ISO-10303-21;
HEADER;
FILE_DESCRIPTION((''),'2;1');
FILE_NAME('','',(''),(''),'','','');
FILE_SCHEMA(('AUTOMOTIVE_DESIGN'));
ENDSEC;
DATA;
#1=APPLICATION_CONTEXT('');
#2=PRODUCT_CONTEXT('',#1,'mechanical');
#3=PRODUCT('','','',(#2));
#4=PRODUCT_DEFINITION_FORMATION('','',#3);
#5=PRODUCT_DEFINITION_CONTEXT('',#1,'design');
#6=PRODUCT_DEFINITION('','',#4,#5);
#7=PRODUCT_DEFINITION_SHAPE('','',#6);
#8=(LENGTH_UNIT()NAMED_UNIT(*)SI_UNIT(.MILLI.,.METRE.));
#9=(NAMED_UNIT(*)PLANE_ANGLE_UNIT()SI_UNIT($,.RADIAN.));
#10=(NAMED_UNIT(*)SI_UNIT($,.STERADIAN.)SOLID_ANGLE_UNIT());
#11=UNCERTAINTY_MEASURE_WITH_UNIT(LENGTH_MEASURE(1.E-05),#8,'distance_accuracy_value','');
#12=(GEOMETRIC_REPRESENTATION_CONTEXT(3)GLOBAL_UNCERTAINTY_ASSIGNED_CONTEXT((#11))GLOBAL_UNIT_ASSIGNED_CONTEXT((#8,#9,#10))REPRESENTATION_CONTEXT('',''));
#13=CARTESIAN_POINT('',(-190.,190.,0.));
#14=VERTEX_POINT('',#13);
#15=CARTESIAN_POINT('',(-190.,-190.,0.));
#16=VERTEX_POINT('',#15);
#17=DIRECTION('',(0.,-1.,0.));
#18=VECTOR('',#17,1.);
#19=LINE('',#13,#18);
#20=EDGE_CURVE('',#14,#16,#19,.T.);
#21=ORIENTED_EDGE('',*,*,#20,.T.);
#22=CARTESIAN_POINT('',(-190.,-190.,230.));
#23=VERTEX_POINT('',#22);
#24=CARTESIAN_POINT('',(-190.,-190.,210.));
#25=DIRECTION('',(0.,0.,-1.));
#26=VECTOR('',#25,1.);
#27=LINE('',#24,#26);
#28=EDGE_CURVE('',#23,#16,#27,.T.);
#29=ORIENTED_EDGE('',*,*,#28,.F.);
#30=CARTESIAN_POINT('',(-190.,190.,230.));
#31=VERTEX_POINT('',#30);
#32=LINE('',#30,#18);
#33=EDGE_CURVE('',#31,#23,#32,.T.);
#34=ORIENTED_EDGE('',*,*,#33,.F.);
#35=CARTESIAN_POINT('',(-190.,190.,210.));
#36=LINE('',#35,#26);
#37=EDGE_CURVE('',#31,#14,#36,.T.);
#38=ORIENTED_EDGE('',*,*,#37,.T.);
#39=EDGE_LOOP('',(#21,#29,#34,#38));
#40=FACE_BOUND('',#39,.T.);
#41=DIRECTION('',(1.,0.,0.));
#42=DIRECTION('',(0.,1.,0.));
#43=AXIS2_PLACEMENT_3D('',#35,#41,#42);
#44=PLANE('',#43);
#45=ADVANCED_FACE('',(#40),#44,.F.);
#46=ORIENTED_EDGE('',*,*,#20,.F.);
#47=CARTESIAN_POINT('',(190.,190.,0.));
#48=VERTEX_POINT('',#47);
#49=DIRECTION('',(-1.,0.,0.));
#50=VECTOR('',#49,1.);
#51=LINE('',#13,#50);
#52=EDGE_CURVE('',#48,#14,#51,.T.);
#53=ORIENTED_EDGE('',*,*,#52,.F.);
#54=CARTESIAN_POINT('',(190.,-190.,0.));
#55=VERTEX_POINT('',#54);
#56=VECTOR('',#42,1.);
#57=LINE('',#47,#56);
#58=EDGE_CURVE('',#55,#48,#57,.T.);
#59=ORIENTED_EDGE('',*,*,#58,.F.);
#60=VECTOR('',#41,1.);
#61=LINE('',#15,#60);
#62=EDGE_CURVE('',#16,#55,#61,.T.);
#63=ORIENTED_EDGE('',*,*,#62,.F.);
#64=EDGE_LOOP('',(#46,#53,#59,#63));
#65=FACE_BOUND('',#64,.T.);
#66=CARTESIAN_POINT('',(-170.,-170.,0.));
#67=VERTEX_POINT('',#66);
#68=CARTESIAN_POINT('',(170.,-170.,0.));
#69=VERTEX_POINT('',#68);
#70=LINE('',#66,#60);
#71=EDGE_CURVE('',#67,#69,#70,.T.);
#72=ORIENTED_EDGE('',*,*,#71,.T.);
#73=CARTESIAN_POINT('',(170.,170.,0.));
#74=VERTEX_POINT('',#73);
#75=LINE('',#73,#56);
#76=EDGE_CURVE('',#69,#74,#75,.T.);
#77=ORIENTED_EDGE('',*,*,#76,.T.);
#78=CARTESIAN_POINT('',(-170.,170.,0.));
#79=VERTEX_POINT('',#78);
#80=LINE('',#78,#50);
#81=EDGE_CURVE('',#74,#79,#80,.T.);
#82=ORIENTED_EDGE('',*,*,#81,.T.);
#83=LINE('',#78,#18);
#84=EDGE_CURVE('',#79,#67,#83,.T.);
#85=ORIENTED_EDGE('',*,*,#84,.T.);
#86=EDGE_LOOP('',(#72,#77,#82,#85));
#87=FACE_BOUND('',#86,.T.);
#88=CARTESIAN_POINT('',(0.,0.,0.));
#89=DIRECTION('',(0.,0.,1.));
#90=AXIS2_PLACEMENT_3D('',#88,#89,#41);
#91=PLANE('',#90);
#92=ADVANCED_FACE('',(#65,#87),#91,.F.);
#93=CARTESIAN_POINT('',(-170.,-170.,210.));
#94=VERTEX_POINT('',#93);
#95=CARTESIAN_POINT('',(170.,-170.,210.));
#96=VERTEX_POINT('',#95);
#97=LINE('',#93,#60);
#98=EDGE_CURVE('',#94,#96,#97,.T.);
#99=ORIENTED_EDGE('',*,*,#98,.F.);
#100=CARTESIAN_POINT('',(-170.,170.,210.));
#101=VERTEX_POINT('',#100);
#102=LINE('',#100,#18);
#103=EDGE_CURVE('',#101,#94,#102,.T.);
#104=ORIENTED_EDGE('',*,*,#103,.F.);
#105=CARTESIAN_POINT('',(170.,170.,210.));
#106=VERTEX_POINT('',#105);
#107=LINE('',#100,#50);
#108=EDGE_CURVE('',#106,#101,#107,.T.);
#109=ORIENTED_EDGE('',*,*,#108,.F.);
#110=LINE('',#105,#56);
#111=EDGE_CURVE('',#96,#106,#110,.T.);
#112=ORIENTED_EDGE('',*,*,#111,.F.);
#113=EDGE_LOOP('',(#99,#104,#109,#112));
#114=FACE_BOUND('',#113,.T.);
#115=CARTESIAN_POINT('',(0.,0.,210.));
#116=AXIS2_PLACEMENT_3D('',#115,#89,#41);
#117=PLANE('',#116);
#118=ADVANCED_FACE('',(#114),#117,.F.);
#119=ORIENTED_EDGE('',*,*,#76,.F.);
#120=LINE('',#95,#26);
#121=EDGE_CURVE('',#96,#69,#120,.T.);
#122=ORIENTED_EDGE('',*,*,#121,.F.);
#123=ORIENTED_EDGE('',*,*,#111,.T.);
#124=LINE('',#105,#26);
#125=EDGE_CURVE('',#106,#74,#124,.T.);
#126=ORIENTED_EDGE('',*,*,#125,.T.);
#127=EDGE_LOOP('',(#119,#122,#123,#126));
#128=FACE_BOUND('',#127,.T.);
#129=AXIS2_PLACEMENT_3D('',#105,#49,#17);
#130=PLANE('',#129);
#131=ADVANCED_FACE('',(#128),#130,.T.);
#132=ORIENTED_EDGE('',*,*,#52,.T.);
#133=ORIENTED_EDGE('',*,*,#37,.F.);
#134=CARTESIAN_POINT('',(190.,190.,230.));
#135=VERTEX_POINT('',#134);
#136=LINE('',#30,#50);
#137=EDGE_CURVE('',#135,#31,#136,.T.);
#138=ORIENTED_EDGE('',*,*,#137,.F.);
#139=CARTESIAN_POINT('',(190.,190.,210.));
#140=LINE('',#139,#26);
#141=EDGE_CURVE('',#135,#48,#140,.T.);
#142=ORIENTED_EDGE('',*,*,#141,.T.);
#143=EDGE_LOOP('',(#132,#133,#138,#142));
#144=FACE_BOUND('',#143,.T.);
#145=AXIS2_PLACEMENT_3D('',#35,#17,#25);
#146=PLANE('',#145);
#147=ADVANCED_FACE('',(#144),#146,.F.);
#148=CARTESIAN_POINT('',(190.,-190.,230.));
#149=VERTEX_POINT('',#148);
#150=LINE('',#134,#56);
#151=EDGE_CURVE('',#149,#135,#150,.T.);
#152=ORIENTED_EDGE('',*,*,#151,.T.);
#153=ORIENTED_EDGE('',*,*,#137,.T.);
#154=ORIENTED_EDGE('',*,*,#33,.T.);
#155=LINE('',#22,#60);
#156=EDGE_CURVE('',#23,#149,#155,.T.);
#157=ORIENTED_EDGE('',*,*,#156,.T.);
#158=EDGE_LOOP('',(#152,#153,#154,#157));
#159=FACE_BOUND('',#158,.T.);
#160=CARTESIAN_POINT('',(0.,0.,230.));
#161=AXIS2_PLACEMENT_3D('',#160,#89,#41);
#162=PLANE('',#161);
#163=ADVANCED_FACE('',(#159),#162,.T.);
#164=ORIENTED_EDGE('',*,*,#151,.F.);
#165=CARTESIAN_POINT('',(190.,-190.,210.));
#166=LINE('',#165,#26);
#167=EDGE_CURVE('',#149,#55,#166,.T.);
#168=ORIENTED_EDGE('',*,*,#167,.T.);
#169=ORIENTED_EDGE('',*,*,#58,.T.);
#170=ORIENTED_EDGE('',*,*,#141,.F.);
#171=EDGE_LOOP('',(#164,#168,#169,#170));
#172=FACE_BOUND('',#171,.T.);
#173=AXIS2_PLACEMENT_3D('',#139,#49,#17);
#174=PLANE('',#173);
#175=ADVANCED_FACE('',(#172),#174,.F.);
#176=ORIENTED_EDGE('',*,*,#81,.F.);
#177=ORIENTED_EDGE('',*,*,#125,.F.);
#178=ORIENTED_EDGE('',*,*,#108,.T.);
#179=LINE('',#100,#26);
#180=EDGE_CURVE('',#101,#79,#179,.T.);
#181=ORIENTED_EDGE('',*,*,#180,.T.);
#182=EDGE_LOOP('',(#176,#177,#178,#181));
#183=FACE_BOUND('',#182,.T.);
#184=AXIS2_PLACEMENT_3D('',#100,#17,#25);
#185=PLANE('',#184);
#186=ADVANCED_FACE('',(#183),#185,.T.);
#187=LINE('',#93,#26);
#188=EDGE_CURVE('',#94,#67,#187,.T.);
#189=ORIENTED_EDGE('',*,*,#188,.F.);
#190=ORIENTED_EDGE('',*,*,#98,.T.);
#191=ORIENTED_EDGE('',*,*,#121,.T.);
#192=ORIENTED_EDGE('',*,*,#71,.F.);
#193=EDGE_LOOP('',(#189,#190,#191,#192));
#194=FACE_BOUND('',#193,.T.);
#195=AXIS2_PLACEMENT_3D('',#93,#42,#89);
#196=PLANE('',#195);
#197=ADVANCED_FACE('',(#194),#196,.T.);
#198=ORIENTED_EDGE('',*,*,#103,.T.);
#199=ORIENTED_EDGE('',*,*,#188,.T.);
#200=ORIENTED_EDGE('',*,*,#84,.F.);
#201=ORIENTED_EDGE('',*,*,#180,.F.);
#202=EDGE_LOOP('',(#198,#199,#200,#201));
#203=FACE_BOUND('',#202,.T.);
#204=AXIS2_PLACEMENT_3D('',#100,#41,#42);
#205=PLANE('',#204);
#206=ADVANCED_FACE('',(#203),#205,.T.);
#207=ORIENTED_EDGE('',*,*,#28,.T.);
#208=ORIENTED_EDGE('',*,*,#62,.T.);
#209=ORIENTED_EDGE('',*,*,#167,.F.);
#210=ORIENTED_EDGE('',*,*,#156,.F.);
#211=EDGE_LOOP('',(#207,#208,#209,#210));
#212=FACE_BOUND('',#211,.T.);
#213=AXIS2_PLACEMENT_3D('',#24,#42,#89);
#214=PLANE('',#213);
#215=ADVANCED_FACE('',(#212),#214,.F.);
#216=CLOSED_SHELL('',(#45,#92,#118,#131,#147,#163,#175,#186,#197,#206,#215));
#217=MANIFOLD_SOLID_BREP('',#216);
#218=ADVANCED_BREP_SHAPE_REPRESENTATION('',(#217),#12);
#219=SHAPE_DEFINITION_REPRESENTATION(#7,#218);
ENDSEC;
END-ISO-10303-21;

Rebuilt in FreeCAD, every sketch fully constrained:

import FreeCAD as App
import Part
import Sketcher

doc = App.newDocument("Part")
body = doc.addObject("PartDesign::Body", "Body")

sketch1 = body.newObject("Sketcher::SketchObject", "Sketch")
sketch1.AttachmentSupport = (doc.getObject("XY_Plane"), [""])
sketch1.MapMode = "FlatFace"
sketch1.addGeometry([
    Part.LineSegment(App.Vector(-190, 190, 0), App.Vector(-190, -190, 0)),
    Part.LineSegment(App.Vector(-190, -190, 0), App.Vector(190, -190, 0)),
    Part.LineSegment(App.Vector(190, -190, 0), App.Vector(190, 190, 0)),
    Part.LineSegment(App.Vector(190, 190, 0), App.Vector(-190, 190, 0)),
    Part.LineSegment(App.Vector(170, -170, 0), App.Vector(-170, -170, 0)),
    Part.LineSegment(App.Vector(-170, -170, 0), App.Vector(-170, 170, 0)),
    Part.LineSegment(App.Vector(-170, 170, 0), App.Vector(170, 170, 0)),
    Part.LineSegment(App.Vector(170, 170, 0), App.Vector(170, -170, 0)),
], False)
sketch1.addConstraint([
    Sketcher.Constraint("Coincident", 0, 2, 1, 1),
    Sketcher.Constraint("Coincident", 1, 2, 2, 1),
    Sketcher.Constraint("Coincident", 2, 2, 3, 1),
    Sketcher.Constraint("Coincident", 3, 2, 0, 1),
    Sketcher.Constraint("Coincident", 4, 2, 5, 1),
    Sketcher.Constraint("Coincident", 5, 2, 6, 1),
    Sketcher.Constraint("Coincident", 6, 2, 7, 1),
    Sketcher.Constraint("Coincident", 7, 2, 4, 1),
    Sketcher.Constraint("Vertical", 0),
    Sketcher.Constraint("Horizontal", 1),
    Sketcher.Constraint("Vertical", 2),
    Sketcher.Constraint("Horizontal", 3),
    Sketcher.Constraint("Horizontal", 4),
    Sketcher.Constraint("Vertical", 5),
    Sketcher.Constraint("Horizontal", 6),
    Sketcher.Constraint("Vertical", 7),
    Sketcher.Constraint("Symmetric", 0, 2, 2, 2, -1, 1),
    Sketcher.Constraint("Symmetric", 4, 2, 6, 2, -1, 1),
    Sketcher.Constraint("Equal", 3, 0),
    Sketcher.Constraint("Equal", 6, 5),
    Sketcher.Constraint("DistanceX", 1, 1, 1, 2, 380.0),
    Sketcher.Constraint("DistanceX", 4, 2, 4, 1, 340.0),
])
pad1 = body.newObject("PartDesign::Pad", "Pad")
pad1.Profile = sketch1
pad1.Length = 210

sketch2 = body.newObject("Sketcher::SketchObject", "Sketch001")
sketch2.AttachmentSupport = (doc.getObject("XY_Plane"), [""])
sketch2.MapMode = "FlatFace"
sketch2.AttachmentOffset = App.Placement(App.Vector(0, 0, 210), App.Rotation())
sketch2.addGeometry([
    Part.LineSegment(App.Vector(-190, 190, 0), App.Vector(-190, -190, 0)),
    Part.LineSegment(App.Vector(-190, -190, 0), App.Vector(190, -190, 0)),
    Part.LineSegment(App.Vector(190, -190, 0), App.Vector(190, 190, 0)),
    Part.LineSegment(App.Vector(190, 190, 0), App.Vector(-190, 190, 0)),
], False)
sketch2.addConstraint([
    Sketcher.Constraint("Coincident", 0, 2, 1, 1),
    Sketcher.Constraint("Coincident", 1, 2, 2, 1),
    Sketcher.Constraint("Coincident", 2, 2, 3, 1),
    Sketcher.Constraint("Coincident", 3, 2, 0, 1),
    Sketcher.Constraint("Vertical", 0),
    Sketcher.Constraint("Horizontal", 1),
    Sketcher.Constraint("Vertical", 2),
    Sketcher.Constraint("Horizontal", 3),
    Sketcher.Constraint("Symmetric", 0, 2, 2, 2, -1, 1),
    Sketcher.Constraint("Equal", 3, 0),
    Sketcher.Constraint("DistanceX", 1, 1, 1, 2, 380.0),
])
pad2 = body.newObject("PartDesign::Pad", "Pad001")
pad2.Profile = sketch2
pad2.Length = 20

doc.recompute()
